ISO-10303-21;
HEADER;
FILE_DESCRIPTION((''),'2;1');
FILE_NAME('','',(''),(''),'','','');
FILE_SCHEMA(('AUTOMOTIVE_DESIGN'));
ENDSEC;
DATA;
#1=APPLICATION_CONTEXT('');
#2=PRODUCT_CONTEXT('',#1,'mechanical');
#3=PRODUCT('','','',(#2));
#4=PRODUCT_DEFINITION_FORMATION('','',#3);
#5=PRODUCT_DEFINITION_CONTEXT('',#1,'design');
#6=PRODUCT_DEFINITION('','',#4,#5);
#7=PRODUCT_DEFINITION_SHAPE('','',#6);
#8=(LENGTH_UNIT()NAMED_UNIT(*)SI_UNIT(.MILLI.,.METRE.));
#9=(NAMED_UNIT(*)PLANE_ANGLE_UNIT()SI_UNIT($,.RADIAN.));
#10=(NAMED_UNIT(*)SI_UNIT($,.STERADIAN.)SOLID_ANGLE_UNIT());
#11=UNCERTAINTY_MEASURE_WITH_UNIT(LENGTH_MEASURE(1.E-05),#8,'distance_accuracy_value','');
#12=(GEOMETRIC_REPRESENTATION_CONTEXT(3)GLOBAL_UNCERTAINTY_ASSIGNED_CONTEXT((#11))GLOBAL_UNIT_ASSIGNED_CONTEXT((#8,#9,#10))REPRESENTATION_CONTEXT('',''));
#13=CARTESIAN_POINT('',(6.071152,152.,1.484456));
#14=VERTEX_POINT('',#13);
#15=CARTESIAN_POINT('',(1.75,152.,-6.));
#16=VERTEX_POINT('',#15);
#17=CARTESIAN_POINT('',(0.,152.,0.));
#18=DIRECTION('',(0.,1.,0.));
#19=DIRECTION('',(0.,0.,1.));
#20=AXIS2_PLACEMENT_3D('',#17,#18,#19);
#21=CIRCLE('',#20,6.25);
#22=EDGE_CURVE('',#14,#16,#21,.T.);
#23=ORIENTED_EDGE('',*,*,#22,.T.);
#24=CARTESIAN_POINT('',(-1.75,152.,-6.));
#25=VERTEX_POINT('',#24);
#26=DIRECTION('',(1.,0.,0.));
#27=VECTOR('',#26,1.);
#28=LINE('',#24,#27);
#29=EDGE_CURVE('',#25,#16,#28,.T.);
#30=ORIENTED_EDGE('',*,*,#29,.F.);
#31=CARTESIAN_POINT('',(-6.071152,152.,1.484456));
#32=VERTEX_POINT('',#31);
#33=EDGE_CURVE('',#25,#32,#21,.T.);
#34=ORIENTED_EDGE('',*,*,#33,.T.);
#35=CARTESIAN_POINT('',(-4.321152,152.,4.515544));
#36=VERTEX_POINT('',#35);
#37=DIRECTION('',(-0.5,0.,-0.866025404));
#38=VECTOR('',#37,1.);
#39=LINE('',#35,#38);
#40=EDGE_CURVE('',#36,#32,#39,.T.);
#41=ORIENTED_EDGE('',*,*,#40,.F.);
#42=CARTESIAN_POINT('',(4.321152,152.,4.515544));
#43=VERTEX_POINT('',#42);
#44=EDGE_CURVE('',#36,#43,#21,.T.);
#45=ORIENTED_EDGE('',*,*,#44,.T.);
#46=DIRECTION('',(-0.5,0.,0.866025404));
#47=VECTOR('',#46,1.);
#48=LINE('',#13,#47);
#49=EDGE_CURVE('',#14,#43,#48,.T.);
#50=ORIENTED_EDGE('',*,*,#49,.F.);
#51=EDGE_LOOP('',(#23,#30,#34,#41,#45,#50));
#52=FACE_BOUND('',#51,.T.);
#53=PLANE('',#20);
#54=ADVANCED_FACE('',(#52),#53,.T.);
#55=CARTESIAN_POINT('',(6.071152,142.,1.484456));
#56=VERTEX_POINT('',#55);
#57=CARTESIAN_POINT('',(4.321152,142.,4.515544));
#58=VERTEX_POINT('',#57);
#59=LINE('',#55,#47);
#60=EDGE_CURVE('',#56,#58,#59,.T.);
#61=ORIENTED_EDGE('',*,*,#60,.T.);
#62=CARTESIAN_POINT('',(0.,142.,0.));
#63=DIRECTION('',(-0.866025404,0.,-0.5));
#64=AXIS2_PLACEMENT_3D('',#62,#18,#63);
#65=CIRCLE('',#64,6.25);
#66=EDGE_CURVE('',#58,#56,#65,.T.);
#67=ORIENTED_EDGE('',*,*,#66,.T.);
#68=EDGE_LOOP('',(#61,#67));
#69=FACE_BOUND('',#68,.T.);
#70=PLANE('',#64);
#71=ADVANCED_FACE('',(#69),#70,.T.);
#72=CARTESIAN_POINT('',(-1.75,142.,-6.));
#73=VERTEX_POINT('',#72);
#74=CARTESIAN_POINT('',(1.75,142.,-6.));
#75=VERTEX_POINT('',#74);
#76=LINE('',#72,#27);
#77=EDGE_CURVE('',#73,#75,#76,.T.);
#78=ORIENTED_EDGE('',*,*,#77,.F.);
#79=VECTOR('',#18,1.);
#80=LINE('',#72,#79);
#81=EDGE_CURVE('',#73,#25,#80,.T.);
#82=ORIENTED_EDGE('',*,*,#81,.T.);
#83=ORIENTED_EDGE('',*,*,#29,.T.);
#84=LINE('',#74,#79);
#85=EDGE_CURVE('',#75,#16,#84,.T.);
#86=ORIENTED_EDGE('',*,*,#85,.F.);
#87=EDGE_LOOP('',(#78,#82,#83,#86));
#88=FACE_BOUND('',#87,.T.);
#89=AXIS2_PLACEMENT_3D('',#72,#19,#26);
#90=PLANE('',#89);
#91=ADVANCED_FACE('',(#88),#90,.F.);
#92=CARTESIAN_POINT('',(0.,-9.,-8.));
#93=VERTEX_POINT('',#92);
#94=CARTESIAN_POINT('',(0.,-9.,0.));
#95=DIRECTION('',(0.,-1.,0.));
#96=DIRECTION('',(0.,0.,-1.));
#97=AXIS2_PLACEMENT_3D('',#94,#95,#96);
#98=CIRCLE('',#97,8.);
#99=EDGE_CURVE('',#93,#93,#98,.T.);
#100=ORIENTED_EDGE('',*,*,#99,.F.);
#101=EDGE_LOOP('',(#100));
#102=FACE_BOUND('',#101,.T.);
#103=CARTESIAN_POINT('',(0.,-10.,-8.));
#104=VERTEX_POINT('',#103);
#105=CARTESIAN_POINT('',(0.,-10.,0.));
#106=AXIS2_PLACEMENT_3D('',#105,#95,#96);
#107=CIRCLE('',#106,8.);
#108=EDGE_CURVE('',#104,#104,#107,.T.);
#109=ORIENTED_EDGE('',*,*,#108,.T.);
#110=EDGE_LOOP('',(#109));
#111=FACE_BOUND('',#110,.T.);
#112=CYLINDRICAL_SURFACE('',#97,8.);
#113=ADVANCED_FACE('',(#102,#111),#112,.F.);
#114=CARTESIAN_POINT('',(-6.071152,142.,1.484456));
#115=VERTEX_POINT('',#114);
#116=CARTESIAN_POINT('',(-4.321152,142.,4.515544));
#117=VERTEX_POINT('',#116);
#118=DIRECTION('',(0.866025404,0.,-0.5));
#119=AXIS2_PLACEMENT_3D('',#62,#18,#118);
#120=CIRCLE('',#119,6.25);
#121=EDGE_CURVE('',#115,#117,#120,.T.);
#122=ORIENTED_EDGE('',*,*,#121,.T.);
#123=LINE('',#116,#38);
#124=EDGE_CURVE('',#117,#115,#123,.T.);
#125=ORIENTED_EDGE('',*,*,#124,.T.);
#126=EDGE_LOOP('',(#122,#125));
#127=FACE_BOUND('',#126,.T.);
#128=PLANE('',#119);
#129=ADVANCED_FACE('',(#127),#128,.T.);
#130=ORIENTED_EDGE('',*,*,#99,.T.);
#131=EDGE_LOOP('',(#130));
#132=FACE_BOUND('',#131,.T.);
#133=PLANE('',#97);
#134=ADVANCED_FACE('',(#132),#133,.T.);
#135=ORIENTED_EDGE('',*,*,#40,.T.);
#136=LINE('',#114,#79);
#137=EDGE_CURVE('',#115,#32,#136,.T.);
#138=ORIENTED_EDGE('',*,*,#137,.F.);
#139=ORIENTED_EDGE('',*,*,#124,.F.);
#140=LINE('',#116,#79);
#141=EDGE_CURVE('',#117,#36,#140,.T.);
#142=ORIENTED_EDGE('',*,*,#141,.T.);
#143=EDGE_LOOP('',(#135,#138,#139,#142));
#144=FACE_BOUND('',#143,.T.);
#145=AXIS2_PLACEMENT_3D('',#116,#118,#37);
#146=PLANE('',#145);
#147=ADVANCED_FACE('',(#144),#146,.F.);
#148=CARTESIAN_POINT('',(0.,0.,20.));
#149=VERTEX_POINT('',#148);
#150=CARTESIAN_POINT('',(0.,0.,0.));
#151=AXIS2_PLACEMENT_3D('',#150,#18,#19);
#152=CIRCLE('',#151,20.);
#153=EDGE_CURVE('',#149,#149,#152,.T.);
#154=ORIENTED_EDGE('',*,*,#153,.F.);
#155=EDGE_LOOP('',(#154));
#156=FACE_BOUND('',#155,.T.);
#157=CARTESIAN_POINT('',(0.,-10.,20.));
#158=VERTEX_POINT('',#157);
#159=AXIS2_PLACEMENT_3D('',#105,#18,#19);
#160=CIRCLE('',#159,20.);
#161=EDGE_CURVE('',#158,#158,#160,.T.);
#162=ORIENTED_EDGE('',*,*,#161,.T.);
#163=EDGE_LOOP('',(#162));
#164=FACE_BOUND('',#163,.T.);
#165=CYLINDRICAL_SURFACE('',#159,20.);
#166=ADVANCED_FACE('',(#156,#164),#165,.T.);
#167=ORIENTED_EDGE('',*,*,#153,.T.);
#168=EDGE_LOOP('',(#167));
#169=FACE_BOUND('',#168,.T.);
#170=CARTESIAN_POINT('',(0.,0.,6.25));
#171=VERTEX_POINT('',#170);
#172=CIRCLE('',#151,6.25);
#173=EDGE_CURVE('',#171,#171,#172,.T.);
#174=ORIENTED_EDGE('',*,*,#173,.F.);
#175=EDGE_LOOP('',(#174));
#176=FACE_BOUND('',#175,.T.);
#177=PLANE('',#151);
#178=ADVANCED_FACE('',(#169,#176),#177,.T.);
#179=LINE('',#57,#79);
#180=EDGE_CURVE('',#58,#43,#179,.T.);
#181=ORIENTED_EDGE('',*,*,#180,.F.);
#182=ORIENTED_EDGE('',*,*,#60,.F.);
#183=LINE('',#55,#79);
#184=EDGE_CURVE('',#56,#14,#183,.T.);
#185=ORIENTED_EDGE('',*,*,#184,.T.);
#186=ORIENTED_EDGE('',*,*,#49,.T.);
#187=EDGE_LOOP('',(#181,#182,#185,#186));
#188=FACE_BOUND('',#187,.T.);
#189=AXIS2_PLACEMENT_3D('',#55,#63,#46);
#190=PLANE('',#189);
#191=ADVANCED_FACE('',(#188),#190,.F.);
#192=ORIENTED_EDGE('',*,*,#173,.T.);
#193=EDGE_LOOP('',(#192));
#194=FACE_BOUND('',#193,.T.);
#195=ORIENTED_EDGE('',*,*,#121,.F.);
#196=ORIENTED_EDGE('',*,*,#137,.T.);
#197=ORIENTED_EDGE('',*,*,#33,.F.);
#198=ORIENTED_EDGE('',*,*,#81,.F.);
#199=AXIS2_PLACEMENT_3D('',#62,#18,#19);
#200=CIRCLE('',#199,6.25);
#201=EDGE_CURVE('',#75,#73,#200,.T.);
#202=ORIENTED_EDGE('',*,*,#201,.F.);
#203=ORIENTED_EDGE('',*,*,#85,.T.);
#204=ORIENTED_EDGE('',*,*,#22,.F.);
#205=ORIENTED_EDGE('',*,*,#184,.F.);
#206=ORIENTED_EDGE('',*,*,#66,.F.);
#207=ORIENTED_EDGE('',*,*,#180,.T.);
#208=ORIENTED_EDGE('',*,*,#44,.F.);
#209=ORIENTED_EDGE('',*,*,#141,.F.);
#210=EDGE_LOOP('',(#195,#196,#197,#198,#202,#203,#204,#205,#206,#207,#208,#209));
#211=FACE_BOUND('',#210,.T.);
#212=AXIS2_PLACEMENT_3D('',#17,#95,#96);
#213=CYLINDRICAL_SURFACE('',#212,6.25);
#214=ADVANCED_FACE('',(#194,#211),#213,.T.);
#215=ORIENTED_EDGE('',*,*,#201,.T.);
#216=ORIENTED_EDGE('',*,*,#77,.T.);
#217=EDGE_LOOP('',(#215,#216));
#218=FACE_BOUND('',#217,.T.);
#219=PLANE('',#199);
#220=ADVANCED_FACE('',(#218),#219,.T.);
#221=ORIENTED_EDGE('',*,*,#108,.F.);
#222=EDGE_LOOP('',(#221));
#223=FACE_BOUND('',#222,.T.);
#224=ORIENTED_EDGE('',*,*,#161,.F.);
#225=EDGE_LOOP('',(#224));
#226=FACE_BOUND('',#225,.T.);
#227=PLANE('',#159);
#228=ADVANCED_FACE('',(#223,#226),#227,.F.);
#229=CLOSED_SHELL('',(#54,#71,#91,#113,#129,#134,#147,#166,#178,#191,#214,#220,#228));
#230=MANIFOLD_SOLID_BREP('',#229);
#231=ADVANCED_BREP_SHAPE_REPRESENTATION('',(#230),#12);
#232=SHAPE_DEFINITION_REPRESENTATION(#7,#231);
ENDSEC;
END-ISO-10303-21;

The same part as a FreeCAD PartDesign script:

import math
import FreeCAD as App
import Part
import Sketcher
Q = App.Units.Quantity

doc = App.newDocument("Part")
body = doc.addObject("PartDesign::Body", "Body")

# Sketch on XZ plane
sketch1 = doc.addObject("Sketcher::SketchObject", "Sketch")
body.addObject(sketch1)
sketch1.AttachmentSupport = (doc.XZ_Plane, [""])
sketch1.MapMode = "FlatFace"
sketch1.addGeometry(Part.Circle(App.Vector(0, 0, 0), App.Vector(0, 0, 1), 20), False)
sketch1.addConstraint([
    Sketcher.Constraint("Coincident", 0, 3, -1, 1),
    Sketcher.Constraint("Diameter", 0, Q("40 mm")),
])
pad1 = doc.addObject("PartDesign::Pad", "Pad")
body.addObject(pad1)
pad1.Profile = sketch1
pad1.Length = 10

# Sketch on XZ plane
sketch2 = doc.addObject("Sketcher::SketchObject", "Sketch001")
body.addObject(sketch2)
sketch2.AttachmentSupport = (doc.XZ_Plane, [""])
sketch2.MapMode = "FlatFace"
sketch2.addGeometry(Part.Circle(App.Vector(0, 0, 0), App.Vector(0, 0, 1), 6), False)
sketch2.addConstraint([
    Sketcher.Constraint("Coincident", 0, 3, -1, 1),
    Sketcher.Constraint("Diameter", 0, Q("12.5 mm")),
])
pad2 = doc.addObject("PartDesign::Pad", "Pad001")
body.addObject(pad2)
pad2.Profile = sketch2
pad2.Length = 152
pad2.Reversed = True

# Sketch on XZ plane
sketch3 = doc.addObject("Sketcher::SketchObject", "Sketch002")
body.addObject(sketch3)
sketch3.AttachmentSupport = (doc.XZ_Plane, [""])
sketch3.MapMode = "FlatFace"
sketch3.AttachmentOffset = App.Placement(App.Vector(0, 0, -142), App.Rotation())
sketch3.addGeometry([
    Part.LineSegment(App.Vector(-1.8, -6, 0), App.Vector(1.8, -6, 0)),
    Part.ArcOfCircle(Part.Circle(App.Vector(0, 0, 0), App.Vector(0, 0, 1), 6.2), math.radians(-106), math.radians(-74)),
], False)
sketch3.addConstraint([
    Sketcher.Constraint("Coincident", 0, 1, 1, 1),
    Sketcher.Constraint("Coincident", 1, 2, 0, 2),
    Sketcher.Constraint("Horizontal", 0),
    Sketcher.Constraint("Coincident", 1, 3, -1, 1),
    Sketcher.Constraint("Radius", 1, Q("6.25 mm")),
    Sketcher.Constraint("DistanceX", 0, 1, 0, 2, Q("3.5 mm")),
])
pocket1 = doc.addObject("PartDesign::Pocket", "Pocket")
body.addObject(pocket1)
pocket1.Profile = sketch3
pocket1.Length = 10
doc.recompute()

polarpattern = doc.addObject("PartDesign::PolarPattern", "PolarPattern")
body.addObject(polarpattern)
polarpattern.Originals = [pocket1]
polarpattern.Axis = (doc.Y_Axis, [""])
polarpattern.Angle = 360
polarpattern.Occurrences = 3
body.Tip = polarpattern

# Sketch on XZ plane
sketch4 = doc.addObject("Sketcher::SketchObject", "Sketch003")
body.addObject(sketch4)
sketch4.AttachmentSupport = (doc.XZ_Plane, [""])
sketch4.MapMode = "FlatFace"
sketch4.AttachmentOffset = App.Placement(App.Vector(0, 0, 10), App.Rotation())
sketch4.addGeometry(Part.Circle(App.Vector(0, 0, 0), App.Vector(0, 0, 1), 8), False)
sketch4.addConstraint([
    Sketcher.Constraint("Coincident", 0, 3, -1, 1),
    Sketcher.Constraint("Diameter", 0, Q("16 mm")),
])
pocket2 = doc.addObject("PartDesign::Pocket", "Pocket001")
body.addObject(pocket2)
pocket2.Profile = sketch4
pocket2.Length = 1

doc.recompute()
